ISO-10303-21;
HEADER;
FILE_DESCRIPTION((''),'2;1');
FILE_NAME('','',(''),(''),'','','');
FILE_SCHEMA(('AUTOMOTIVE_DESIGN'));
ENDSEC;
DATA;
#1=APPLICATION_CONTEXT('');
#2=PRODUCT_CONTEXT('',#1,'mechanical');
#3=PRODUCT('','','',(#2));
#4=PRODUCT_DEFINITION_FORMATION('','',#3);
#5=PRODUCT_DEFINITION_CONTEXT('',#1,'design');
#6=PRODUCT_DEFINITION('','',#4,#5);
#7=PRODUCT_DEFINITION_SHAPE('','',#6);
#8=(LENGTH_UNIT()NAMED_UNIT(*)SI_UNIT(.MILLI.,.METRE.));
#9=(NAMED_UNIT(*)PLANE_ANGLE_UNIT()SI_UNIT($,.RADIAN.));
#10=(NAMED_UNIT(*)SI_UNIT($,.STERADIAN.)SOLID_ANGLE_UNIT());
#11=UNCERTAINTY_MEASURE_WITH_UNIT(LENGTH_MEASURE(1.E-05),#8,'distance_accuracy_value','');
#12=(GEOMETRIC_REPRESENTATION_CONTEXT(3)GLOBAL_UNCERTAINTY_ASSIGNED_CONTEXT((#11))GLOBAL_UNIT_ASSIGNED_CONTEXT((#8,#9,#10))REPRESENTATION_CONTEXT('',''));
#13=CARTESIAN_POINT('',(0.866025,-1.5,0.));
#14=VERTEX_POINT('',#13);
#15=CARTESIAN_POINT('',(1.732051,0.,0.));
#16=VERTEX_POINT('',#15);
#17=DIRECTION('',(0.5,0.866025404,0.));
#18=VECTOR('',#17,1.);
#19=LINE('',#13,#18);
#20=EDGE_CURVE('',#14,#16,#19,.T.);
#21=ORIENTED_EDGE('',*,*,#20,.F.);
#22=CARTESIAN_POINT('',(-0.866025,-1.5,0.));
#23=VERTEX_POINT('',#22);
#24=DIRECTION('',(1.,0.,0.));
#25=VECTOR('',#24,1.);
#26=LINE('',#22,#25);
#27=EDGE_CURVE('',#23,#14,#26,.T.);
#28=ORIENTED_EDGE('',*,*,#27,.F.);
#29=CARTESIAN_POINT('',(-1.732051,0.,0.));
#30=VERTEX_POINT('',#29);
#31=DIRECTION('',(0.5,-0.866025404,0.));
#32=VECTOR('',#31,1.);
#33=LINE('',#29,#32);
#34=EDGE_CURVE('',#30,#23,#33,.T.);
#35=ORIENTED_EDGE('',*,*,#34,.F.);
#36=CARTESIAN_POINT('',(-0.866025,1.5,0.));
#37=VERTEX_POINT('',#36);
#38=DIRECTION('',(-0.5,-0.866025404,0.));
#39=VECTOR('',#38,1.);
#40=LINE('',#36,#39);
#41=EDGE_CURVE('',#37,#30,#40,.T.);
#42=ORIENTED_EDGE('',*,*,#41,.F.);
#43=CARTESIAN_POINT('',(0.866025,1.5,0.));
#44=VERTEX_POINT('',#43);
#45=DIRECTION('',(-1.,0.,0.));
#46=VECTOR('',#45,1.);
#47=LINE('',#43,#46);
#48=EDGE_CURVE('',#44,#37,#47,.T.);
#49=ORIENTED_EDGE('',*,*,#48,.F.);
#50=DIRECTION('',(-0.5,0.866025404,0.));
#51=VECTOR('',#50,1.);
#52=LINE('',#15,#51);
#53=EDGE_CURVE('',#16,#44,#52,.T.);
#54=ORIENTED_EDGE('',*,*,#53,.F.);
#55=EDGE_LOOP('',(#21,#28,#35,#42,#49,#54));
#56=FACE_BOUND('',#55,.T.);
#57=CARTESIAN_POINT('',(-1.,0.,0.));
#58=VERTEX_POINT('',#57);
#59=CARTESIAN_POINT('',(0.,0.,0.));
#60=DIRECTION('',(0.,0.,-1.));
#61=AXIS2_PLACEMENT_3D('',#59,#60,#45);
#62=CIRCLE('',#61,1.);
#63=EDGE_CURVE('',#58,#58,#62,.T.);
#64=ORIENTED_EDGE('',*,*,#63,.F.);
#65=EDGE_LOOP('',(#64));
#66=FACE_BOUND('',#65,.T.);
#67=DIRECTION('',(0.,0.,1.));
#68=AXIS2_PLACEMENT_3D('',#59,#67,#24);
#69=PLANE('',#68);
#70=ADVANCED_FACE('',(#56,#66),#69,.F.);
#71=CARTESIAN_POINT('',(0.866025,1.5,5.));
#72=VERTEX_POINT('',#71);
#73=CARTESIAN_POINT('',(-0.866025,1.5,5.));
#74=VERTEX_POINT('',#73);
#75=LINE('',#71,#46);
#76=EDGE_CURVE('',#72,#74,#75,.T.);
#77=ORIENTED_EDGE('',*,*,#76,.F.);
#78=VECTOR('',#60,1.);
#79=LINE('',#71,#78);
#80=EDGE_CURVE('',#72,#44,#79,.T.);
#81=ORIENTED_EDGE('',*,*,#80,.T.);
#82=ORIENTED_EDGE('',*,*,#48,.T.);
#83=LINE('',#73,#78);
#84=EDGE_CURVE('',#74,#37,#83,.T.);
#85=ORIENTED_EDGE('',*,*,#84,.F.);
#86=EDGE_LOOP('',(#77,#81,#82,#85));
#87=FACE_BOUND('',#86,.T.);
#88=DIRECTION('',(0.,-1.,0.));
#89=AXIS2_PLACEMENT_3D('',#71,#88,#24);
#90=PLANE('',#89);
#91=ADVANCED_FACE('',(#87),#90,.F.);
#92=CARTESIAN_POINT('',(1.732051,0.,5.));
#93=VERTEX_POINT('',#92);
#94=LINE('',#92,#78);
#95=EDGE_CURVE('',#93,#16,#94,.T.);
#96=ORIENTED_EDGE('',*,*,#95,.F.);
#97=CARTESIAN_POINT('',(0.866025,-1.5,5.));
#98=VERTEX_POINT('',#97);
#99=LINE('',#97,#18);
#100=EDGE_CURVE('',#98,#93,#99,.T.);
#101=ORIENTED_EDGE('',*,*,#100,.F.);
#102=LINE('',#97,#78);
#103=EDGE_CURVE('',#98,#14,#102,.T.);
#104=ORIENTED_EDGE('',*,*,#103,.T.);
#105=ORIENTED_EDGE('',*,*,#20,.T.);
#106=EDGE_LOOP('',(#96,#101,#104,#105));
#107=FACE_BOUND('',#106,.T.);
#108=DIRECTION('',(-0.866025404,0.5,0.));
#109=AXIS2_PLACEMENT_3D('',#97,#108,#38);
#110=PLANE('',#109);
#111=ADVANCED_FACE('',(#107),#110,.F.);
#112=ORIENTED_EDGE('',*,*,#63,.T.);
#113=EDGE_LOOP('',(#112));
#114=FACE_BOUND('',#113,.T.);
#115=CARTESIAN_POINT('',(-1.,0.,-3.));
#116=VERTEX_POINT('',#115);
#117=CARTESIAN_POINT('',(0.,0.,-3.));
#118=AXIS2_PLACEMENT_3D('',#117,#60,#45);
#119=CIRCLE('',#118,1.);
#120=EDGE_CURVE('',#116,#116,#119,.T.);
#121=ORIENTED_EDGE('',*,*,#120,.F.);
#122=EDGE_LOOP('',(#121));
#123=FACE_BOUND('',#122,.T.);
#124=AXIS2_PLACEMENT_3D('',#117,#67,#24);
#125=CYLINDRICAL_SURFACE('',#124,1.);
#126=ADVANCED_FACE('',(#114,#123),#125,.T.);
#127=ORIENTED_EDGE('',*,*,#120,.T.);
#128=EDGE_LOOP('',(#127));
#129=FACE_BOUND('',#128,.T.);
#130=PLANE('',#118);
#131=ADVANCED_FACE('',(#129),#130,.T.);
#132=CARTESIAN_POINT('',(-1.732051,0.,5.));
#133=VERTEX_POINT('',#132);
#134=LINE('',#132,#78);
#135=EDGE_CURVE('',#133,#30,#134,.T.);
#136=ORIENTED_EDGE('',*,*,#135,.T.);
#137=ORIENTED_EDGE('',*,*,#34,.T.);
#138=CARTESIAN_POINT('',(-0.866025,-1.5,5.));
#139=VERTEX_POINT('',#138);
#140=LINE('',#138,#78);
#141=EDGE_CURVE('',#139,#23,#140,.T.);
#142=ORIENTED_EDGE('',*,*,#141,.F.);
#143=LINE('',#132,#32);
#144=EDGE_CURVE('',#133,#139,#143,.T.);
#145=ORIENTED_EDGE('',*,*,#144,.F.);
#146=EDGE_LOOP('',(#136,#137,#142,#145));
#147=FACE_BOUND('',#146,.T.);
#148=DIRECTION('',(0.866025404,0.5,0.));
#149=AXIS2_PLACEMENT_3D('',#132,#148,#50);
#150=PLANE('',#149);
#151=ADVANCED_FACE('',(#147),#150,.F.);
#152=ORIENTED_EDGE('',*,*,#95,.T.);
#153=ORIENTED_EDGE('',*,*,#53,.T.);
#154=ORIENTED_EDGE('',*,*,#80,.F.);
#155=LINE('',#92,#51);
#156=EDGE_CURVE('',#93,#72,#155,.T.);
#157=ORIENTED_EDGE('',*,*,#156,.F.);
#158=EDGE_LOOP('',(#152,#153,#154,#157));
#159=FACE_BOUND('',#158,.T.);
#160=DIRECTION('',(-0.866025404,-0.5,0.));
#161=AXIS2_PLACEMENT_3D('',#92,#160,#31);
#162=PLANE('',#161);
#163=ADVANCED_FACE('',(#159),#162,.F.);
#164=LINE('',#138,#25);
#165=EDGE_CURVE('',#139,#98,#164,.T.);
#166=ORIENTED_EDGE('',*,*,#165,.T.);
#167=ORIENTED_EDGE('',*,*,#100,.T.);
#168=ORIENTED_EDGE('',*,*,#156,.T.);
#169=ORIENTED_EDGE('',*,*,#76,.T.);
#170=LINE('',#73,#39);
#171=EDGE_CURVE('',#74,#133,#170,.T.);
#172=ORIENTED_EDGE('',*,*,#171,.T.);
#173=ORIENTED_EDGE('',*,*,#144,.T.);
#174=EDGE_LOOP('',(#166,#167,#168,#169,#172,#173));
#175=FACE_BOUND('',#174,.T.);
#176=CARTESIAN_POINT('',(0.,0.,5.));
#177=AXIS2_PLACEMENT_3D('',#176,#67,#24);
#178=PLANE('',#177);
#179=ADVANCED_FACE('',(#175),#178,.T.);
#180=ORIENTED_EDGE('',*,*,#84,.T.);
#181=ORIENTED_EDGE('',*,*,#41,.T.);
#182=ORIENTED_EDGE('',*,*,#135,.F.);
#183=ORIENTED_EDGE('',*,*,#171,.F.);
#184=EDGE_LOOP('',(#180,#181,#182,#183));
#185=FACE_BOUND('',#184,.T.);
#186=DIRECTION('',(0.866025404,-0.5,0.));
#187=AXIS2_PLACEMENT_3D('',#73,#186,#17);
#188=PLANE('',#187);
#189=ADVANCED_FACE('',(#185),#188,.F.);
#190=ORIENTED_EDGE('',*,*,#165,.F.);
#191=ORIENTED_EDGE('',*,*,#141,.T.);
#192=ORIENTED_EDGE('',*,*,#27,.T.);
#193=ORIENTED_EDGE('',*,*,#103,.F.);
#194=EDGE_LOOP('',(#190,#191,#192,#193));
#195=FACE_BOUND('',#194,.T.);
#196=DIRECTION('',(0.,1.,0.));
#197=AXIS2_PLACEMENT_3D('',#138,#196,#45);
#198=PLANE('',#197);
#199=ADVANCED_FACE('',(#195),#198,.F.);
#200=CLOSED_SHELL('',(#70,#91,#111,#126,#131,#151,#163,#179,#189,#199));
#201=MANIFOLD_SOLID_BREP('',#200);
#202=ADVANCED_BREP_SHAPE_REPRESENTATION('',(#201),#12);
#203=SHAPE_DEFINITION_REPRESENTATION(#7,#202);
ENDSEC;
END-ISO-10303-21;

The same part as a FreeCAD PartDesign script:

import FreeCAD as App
import Part
import Sketcher
from FreeCAD import Vector
Q = App.Units.Quantity

doc = App.newDocument("Part")
params = doc.addObject("Spreadsheet::Sheet", "Params")
for row, (alias, value) in enumerate([
    ("pad1_length", "5 mm"),
    ("sketch2_diameter", "2 mm"),
    ("pad2_length", "3 mm"),
], start=1):
    params.set(f"A{row}", alias)
    params.set(f"B{row}", "=" + value)
    params.setAlias(f"B{row}", alias)

body = doc.addObject("PartDesign::Body", "Body")

# Sketch on XY plane
sketch1 = body.newObject("Sketcher::SketchObject", "Sketch")
sketch1.AttachmentSupport = (doc.getObject("XY_Plane"), [""])
sketch1.MapMode = "FlatFace"
sketch1.addGeometry([
    Part.LineSegment(Vector(1.732051, 0, 0), Vector(0.866025, 1.5, 0)),  # 0
    Part.LineSegment(Vector(0.866025, 1.5, 0), Vector(-0.866025, 1.5, 0)),  # 1
    Part.LineSegment(Vector(-0.866025, 1.5, 0), Vector(-1.732051, 0, 0)),  # 2
    Part.LineSegment(Vector(-1.732051, 0, 0), Vector(-0.866025, -1.5, 0)),  # 3
    Part.LineSegment(Vector(-0.866025, -1.5, 0), Vector(0.866025, -1.5, 0)),  # 4
    Part.LineSegment(Vector(0.866025, -1.5, 0), Vector(1.732051, 0, 0)),  # 5
], False)
sketch1.addConstraint([
    Sketcher.Constraint("Coincident", 0, 2, 1, 1),
    Sketcher.Constraint("Coincident", 1, 2, 2, 1),
    Sketcher.Constraint("Coincident", 2, 2, 3, 1),
    Sketcher.Constraint("Coincident", 3, 2, 4, 1),
    Sketcher.Constraint("Coincident", 4, 2, 5, 1),
    Sketcher.Constraint("Coincident", 5, 2, 0, 1),
    Sketcher.Constraint("Horizontal", 1),
    Sketcher.Constraint("Horizontal", 4),
    Sketcher.Constraint("Symmetric", 0, 2, 3, 2, -1, 1),
    Sketcher.Constraint("Symmetric", 2, 2, 5, 2, -1, 1),
    Sketcher.Constraint("PointOnObject", 2, 2, -1),
    Sketcher.Constraint("Parallel", 2, 5),
    Sketcher.Constraint("Vertical", 1, 2, 3, 2),
    Sketcher.Constraint("Angle", 0, Q("120 deg")),
    Sketcher.Constraint("DistanceY", 3, 2, 1, 2, 3.0),
    Sketcher.Constraint("DistanceX", 1, 2, 1, 1, 1.732051),
])
pad1 = body.newObject("PartDesign::Pad", "Pad")
pad1.Profile = sketch1
pad1.setExpression("Length", "Params.pad1_length")

# Sketch on XY plane
sketch2 = body.newObject("Sketcher::SketchObject", "Sketch001")
sketch2.AttachmentSupport = (doc.getObject("XY_Plane"), [""])
sketch2.MapMode = "FlatFace"
sketch2.addGeometry(Part.Circle(Vector(0, 0, 0), Vector(0, 0, 1), 1), False)
sketch2.addConstraint([
    Sketcher.Constraint("Coincident", 0, 3, -1, 1),
    Sketcher.Constraint("Diameter", 0, 2.0),
])
sketch2.setExpression("Constraints[1]", "Params.sketch2_diameter")
pad2 = body.newObject("PartDesign::Pad", "Pad001")
pad2.Profile = sketch2
pad2.setExpression("Length", "Params.pad2_length")
pad2.Reversed = True

doc.recompute()
